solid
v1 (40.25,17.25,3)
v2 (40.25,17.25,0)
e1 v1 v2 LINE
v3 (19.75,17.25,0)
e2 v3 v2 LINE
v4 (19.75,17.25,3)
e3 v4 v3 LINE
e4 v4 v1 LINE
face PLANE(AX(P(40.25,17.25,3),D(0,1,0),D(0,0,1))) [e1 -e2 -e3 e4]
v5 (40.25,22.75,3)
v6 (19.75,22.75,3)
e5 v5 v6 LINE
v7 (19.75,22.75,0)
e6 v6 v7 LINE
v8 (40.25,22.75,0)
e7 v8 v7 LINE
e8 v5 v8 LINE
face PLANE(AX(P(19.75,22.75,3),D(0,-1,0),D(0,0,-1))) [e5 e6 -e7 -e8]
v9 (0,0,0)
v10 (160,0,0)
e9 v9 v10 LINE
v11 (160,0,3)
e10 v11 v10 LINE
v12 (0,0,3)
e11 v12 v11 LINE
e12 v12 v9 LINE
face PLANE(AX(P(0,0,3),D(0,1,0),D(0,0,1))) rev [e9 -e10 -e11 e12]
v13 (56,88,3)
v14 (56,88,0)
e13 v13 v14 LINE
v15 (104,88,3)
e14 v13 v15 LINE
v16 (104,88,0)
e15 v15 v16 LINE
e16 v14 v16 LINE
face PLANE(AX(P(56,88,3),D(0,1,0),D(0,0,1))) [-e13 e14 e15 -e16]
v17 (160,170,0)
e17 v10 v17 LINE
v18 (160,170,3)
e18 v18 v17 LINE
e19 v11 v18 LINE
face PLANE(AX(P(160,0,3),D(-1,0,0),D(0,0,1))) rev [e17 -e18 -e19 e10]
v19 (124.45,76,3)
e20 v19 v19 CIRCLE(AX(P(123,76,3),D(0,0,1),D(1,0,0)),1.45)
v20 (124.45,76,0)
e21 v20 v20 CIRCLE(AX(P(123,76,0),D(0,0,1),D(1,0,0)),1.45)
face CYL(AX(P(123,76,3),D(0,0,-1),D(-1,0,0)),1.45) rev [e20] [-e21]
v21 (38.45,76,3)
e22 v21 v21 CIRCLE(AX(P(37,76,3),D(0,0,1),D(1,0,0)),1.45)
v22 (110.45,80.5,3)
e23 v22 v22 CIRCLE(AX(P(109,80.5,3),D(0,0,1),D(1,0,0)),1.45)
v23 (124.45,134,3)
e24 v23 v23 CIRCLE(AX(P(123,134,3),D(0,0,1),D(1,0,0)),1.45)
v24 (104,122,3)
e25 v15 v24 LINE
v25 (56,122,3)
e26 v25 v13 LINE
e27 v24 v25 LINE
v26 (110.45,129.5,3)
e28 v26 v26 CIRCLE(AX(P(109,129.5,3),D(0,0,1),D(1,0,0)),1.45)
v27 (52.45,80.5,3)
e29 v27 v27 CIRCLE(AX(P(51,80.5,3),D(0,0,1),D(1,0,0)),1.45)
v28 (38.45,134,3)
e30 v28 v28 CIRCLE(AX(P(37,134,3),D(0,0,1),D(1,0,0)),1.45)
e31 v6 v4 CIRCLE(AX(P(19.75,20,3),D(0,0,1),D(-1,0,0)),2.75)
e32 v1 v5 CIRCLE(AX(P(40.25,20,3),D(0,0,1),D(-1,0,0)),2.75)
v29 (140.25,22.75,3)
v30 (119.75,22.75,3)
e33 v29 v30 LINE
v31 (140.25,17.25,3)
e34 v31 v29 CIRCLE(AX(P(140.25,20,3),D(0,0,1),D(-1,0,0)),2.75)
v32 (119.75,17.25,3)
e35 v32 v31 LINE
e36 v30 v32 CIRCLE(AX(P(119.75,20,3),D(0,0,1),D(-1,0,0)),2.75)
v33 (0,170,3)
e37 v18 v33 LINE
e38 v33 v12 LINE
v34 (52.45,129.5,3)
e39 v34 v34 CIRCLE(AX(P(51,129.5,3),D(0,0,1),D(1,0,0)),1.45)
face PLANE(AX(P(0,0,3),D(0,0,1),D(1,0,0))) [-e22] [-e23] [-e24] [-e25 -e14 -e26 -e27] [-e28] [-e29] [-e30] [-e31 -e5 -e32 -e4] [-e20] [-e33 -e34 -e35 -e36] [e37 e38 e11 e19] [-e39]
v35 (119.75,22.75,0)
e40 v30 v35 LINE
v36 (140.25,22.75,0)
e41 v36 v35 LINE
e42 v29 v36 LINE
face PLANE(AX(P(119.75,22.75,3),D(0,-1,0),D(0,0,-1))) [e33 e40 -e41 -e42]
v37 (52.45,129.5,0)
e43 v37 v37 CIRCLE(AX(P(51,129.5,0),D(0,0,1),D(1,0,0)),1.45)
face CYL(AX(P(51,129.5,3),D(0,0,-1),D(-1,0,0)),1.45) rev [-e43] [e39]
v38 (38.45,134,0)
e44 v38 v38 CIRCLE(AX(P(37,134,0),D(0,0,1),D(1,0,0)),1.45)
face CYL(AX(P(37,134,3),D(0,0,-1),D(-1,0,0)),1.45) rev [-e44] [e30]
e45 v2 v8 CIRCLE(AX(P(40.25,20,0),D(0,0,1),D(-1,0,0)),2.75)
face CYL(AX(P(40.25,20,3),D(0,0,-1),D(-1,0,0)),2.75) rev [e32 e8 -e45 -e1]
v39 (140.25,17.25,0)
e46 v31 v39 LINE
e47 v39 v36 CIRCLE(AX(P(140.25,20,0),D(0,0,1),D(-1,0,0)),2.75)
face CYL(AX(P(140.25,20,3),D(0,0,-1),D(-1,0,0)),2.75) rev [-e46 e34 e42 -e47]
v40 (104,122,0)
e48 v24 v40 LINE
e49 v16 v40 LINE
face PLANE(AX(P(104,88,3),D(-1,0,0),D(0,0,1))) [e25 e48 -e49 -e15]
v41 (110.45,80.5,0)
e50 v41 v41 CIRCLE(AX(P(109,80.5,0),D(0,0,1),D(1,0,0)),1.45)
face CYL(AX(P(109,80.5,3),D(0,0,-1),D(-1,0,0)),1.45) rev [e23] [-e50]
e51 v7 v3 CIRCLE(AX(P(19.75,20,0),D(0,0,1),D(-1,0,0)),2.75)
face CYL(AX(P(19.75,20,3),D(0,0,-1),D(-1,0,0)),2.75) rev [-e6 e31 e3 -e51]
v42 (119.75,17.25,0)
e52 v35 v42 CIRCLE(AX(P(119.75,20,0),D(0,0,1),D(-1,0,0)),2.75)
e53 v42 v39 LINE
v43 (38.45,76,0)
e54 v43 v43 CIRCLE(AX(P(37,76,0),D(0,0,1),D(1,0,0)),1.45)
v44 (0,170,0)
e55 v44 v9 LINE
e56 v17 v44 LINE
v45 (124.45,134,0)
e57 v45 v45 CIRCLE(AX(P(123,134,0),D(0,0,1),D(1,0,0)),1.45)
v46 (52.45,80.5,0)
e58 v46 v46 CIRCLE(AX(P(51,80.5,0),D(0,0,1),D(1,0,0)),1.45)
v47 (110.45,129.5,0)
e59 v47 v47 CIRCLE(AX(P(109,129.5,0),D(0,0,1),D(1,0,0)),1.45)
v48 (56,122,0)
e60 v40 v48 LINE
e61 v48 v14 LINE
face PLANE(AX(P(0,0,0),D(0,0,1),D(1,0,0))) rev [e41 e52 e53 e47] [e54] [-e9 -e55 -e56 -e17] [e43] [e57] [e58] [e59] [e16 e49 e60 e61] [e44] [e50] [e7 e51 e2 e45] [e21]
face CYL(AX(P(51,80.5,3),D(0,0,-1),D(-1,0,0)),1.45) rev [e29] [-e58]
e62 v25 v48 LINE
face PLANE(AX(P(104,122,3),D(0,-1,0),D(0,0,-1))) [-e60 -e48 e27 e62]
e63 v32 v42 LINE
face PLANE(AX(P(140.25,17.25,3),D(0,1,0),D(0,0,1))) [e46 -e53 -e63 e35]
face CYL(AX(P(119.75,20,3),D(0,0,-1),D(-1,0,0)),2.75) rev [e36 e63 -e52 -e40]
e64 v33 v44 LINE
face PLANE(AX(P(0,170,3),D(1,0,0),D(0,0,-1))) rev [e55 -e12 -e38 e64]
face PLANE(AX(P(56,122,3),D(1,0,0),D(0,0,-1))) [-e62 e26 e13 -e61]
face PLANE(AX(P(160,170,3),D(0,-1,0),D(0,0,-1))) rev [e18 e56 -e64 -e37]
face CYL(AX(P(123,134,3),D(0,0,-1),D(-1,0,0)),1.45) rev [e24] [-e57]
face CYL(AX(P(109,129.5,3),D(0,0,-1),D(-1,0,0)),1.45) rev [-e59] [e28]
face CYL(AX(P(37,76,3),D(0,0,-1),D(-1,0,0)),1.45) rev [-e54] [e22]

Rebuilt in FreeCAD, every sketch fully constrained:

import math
import FreeCAD as App
import Part
import Sketcher

V = App.Vector


def add_polygon(sketch, points):
    """Adds a closed chain of lines whose ends are joined by coincident constraints."""
    first, n = sketch.GeometryCount, len(points)
    for a, b in zip(points, points[1:] + points[:1]):
        sketch.addGeometry(Part.LineSegment(App.Vector(*a, 0), App.Vector(*b, 0)), False)
    for i in range(n):
        sketch.addConstraint(Sketcher.Constraint("Coincident", first + i, 2, first + (i + 1) % n, 1))

doc = App.newDocument("Part")
body = doc.addObject("PartDesign::Body", "Body")

sketch1 = body.newObject("Sketcher::SketchObject", "Sketch")
sketch1.AttachmentSupport = (doc.getObject("XY_Plane"), [""])
sketch1.MapMode = "FlatFace"
add_polygon(sketch1, [(0, 170), (0, 0), (160, 0), (160, 170)])
sketch1.addGeometry(Part.ArcOfCircle(Part.Circle(V(19.8, 20, 0), V(0, 0, 1), 2.8), math.radians(90), math.radians(270)), False)
sketch1.addGeometry(Part.LineSegment(V(19.8, 22.8, 0), V(40.2, 22.8, 0)), False)
sketch1.addGeometry(Part.ArcOfCircle(Part.Circle(V(40.2, 20, 0), V(0, 0, 1), 2.8), math.radians(-90), math.radians(90)), False)
sketch1.addGeometry(Part.LineSegment(V(40.2, 17.2, 0), V(19.8, 17.2, 0)), False)
sketch1.addGeometry(Part.Circle(V(37, 76, 0), V(0, 0, 1), 1.4), False)
sketch1.addGeometry(Part.ArcOfCircle(Part.Circle(V(119.8, 20, 0), V(0, 0, 1), 2.8), math.radians(90), math.radians(270)), False)
sketch1.addGeometry(Part.LineSegment(V(119.8, 22.8, 0), V(140.2, 22.8, 0)), False)
sketch1.addGeometry(Part.ArcOfCircle(Part.Circle(V(140.2, 20, 0), V(0, 0, 1), 2.8), math.radians(-90), math.radians(90)), False)
sketch1.addGeometry(Part.LineSegment(V(140.2, 17.2, 0), V(119.8, 17.2, 0)), False)
sketch1.addGeometry(Part.Circle(V(123, 76, 0), V(0, 0, 1), 1.4), False)
sketch1.addGeometry(Part.Circle(V(51, 80.5, 0), V(0, 0, 1), 1.4), False)
sketch1.addGeometry(Part.Circle(V(37, 134, 0), V(0, 0, 1), 1.4), False)
sketch1.addGeometry(Part.Circle(V(51, 129.5, 0), V(0, 0, 1), 1.4), False)
sketch1.addGeometry(Part.Circle(V(109, 80.5, 0), V(0, 0, 1), 1.4), False)
add_polygon(sketch1, [(104, 88), (56, 88), (56, 122), (104, 122)])
sketch1.addGeometry(Part.Circle(V(109, 129.5, 0), V(0, 0, 1), 1.4), False)
sketch1.addGeometry(Part.Circle(V(123, 134, 0), V(0, 0, 1), 1.4), False)
sketch1.addConstraint(Sketcher.Constraint("Tangent", 4, 1, 5, 1))
sketch1.addConstraint(Sketcher.Constraint("Tangent", 5, 2, 6, 2))
sketch1.addConstraint(Sketcher.Constraint("Tangent", 6, 1, 7, 1))
sketch1.addConstraint(Sketcher.Constraint("Tangent", 7, 2, 4, 2))
sketch1.addConstraint(Sketcher.Constraint("Tangent", 9, 1, 10, 1))
sketch1.addConstraint(Sketcher.Constraint("Tangent", 10, 2, 11, 2))
sketch1.addConstraint(Sketcher.Constraint("Tangent", 11, 1, 12, 1))
sketch1.addConstraint(Sketcher.Constraint("Tangent", 12, 2, 9, 2))
sketch1.addConstraint(Sketcher.Constraint("Vertical", 0))
sketch1.addConstraint(Sketcher.Constraint("Horizontal", 1))
sketch1.addConstraint(Sketcher.Constraint("Vertical", 2))
sketch1.addConstraint(Sketcher.Constraint("Horizontal", 3))
sketch1.addConstraint(Sketcher.Constraint("Horizontal", 5))
sketch1.addConstraint(Sketcher.Constraint("Horizontal", 7))
sketch1.addConstraint(Sketcher.Constraint("Horizontal", 10))
sketch1.addConstraint(Sketcher.Constraint("Horizontal", 12))
sketch1.addConstraint(Sketcher.Constraint("Horizontal", 18))
sketch1.addConstraint(Sketcher.Constraint("Vertical", 19))
sketch1.addConstraint(Sketcher.Constraint("Horizontal", 20))
sketch1.addConstraint(Sketcher.Constraint("Vertical", 21))
sketch1.addConstraint(Sketcher.Constraint("Coincident", 0, 2, -1, 1))
sketch1.addConstraint(Sketcher.Constraint("Equal", 6, 9))
sketch1.addConstraint(Sketcher.Constraint("Equal", 8, 13))
sketch1.addConstraint(Sketcher.Constraint("Equal", 13, 14))
sketch1.addConstraint(Sketcher.Constraint("Equal", 14, 15))
sketch1.addConstraint(Sketcher.Constraint("Equal", 15, 16))
sketch1.addConstraint(Sketcher.Constraint("Equal", 16, 17))
sketch1.addConstraint(Sketcher.Constraint("Equal", 17, 22))
sketch1.addConstraint(Sketcher.Constraint("Equal", 22, 23))
sketch1.addConstraint(Sketcher.Constraint("Horizontal", 6, 3, 9, 3))
sketch1.addConstraint(Sketcher.Constraint("Horizontal", 8, 3, 13, 3))
sketch1.addConstraint(Sketcher.Constraint("Horizontal", 14, 3, 17, 3))
sketch1.addConstraint(Sketcher.Constraint("Horizontal", 16, 3, 22, 3))
sketch1.addConstraint(Sketcher.Constraint("Horizontal", 15, 3, 23, 3))
sketch1.addConstraint(Sketcher.Constraint("Vertical", 8, 3, 15, 3))
sketch1.addConstraint(Sketcher.Constraint("Vertical", 14, 3, 16, 3))
sketch1.addConstraint(Sketcher.Constraint("Vertical", 17, 3, 22, 3))
sketch1.addConstraint(Sketcher.Constraint("Vertical", 13, 3, 23, 3))
sketch1.addConstraint(Sketcher.Constraint("Equal", 7, 10))
sketch1.addConstraint(Sketcher.Constraint("Diameter", 8, 2.9))
sketch1.addConstraint(Sketcher.Constraint("DistanceX", 1, 1, 1, 2, 160.0))
sketch1.addConstraint(Sketcher.Constraint("DistanceX", 18, 2, 18, 1, 48.0))
sketch1.addConstraint(Sketcher.Constraint("DistanceY", 0, 2, 0, 1, 170.0))
sketch1.addConstraint(Sketcher.Constraint("DistanceY", 19, 1, 19, 2, 34.0))
sketch1.addConstraint(Sketcher.Constraint("Radius", 4, 2.75))
sketch1.addConstraint(Sketcher.Constraint("DistanceX", 5, 1, 5, 2, 20.5))
sketch1.addConstraint(Sketcher.Constraint("DistanceY", -1, 1, 4, 3, 20.0))
sketch1.addConstraint(Sketcher.Constraint("DistanceX", -1, 1, 8, 3, 37.0))
sketch1.addConstraint(Sketcher.Constraint("DistanceY", -1, 1, 8, 3, 76.0))
sketch1.addConstraint(Sketcher.Constraint("DistanceX", -1, 1, 13, 3, 123.0))
sketch1.addConstraint(Sketcher.Constraint("DistanceX", -1, 1, 14, 3, 51.0))
sketch1.addConstraint(Sketcher.Constraint("DistanceY", -1, 1, 15, 3, 134.0))
sketch1.addConstraint(Sketcher.Constraint("DistanceX", -1, 1, 17, 3, 109.0))
sketch1.addConstraint(Sketcher.Constraint("DistanceX", -1, 1, 18, 2, 56.0))
sketch1.addConstraint(Sketcher.Constraint("DistanceY", -1, 1, 18, 2, 88.0))
sketch1.addConstraint(Sketcher.Constraint("DistanceX", 4, 3, 9, 3, 100.0))
sketch1.addConstraint(Sketcher.Constraint("DistanceY", 14, 3, 16, 3, 49.0))
sketch1.addConstraint(Sketcher.Constraint("DistanceY", -1, 1, 14, 3, 80.5))
sketch1.addConstraint(Sketcher.Constraint("DistanceX", -1, 1, 4, 3, 19.75))
pad1 = body.newObject("PartDesign::Pad", "Pad")
pad1.Profile = sketch1
pad1.Length = 3

doc.recompute()
